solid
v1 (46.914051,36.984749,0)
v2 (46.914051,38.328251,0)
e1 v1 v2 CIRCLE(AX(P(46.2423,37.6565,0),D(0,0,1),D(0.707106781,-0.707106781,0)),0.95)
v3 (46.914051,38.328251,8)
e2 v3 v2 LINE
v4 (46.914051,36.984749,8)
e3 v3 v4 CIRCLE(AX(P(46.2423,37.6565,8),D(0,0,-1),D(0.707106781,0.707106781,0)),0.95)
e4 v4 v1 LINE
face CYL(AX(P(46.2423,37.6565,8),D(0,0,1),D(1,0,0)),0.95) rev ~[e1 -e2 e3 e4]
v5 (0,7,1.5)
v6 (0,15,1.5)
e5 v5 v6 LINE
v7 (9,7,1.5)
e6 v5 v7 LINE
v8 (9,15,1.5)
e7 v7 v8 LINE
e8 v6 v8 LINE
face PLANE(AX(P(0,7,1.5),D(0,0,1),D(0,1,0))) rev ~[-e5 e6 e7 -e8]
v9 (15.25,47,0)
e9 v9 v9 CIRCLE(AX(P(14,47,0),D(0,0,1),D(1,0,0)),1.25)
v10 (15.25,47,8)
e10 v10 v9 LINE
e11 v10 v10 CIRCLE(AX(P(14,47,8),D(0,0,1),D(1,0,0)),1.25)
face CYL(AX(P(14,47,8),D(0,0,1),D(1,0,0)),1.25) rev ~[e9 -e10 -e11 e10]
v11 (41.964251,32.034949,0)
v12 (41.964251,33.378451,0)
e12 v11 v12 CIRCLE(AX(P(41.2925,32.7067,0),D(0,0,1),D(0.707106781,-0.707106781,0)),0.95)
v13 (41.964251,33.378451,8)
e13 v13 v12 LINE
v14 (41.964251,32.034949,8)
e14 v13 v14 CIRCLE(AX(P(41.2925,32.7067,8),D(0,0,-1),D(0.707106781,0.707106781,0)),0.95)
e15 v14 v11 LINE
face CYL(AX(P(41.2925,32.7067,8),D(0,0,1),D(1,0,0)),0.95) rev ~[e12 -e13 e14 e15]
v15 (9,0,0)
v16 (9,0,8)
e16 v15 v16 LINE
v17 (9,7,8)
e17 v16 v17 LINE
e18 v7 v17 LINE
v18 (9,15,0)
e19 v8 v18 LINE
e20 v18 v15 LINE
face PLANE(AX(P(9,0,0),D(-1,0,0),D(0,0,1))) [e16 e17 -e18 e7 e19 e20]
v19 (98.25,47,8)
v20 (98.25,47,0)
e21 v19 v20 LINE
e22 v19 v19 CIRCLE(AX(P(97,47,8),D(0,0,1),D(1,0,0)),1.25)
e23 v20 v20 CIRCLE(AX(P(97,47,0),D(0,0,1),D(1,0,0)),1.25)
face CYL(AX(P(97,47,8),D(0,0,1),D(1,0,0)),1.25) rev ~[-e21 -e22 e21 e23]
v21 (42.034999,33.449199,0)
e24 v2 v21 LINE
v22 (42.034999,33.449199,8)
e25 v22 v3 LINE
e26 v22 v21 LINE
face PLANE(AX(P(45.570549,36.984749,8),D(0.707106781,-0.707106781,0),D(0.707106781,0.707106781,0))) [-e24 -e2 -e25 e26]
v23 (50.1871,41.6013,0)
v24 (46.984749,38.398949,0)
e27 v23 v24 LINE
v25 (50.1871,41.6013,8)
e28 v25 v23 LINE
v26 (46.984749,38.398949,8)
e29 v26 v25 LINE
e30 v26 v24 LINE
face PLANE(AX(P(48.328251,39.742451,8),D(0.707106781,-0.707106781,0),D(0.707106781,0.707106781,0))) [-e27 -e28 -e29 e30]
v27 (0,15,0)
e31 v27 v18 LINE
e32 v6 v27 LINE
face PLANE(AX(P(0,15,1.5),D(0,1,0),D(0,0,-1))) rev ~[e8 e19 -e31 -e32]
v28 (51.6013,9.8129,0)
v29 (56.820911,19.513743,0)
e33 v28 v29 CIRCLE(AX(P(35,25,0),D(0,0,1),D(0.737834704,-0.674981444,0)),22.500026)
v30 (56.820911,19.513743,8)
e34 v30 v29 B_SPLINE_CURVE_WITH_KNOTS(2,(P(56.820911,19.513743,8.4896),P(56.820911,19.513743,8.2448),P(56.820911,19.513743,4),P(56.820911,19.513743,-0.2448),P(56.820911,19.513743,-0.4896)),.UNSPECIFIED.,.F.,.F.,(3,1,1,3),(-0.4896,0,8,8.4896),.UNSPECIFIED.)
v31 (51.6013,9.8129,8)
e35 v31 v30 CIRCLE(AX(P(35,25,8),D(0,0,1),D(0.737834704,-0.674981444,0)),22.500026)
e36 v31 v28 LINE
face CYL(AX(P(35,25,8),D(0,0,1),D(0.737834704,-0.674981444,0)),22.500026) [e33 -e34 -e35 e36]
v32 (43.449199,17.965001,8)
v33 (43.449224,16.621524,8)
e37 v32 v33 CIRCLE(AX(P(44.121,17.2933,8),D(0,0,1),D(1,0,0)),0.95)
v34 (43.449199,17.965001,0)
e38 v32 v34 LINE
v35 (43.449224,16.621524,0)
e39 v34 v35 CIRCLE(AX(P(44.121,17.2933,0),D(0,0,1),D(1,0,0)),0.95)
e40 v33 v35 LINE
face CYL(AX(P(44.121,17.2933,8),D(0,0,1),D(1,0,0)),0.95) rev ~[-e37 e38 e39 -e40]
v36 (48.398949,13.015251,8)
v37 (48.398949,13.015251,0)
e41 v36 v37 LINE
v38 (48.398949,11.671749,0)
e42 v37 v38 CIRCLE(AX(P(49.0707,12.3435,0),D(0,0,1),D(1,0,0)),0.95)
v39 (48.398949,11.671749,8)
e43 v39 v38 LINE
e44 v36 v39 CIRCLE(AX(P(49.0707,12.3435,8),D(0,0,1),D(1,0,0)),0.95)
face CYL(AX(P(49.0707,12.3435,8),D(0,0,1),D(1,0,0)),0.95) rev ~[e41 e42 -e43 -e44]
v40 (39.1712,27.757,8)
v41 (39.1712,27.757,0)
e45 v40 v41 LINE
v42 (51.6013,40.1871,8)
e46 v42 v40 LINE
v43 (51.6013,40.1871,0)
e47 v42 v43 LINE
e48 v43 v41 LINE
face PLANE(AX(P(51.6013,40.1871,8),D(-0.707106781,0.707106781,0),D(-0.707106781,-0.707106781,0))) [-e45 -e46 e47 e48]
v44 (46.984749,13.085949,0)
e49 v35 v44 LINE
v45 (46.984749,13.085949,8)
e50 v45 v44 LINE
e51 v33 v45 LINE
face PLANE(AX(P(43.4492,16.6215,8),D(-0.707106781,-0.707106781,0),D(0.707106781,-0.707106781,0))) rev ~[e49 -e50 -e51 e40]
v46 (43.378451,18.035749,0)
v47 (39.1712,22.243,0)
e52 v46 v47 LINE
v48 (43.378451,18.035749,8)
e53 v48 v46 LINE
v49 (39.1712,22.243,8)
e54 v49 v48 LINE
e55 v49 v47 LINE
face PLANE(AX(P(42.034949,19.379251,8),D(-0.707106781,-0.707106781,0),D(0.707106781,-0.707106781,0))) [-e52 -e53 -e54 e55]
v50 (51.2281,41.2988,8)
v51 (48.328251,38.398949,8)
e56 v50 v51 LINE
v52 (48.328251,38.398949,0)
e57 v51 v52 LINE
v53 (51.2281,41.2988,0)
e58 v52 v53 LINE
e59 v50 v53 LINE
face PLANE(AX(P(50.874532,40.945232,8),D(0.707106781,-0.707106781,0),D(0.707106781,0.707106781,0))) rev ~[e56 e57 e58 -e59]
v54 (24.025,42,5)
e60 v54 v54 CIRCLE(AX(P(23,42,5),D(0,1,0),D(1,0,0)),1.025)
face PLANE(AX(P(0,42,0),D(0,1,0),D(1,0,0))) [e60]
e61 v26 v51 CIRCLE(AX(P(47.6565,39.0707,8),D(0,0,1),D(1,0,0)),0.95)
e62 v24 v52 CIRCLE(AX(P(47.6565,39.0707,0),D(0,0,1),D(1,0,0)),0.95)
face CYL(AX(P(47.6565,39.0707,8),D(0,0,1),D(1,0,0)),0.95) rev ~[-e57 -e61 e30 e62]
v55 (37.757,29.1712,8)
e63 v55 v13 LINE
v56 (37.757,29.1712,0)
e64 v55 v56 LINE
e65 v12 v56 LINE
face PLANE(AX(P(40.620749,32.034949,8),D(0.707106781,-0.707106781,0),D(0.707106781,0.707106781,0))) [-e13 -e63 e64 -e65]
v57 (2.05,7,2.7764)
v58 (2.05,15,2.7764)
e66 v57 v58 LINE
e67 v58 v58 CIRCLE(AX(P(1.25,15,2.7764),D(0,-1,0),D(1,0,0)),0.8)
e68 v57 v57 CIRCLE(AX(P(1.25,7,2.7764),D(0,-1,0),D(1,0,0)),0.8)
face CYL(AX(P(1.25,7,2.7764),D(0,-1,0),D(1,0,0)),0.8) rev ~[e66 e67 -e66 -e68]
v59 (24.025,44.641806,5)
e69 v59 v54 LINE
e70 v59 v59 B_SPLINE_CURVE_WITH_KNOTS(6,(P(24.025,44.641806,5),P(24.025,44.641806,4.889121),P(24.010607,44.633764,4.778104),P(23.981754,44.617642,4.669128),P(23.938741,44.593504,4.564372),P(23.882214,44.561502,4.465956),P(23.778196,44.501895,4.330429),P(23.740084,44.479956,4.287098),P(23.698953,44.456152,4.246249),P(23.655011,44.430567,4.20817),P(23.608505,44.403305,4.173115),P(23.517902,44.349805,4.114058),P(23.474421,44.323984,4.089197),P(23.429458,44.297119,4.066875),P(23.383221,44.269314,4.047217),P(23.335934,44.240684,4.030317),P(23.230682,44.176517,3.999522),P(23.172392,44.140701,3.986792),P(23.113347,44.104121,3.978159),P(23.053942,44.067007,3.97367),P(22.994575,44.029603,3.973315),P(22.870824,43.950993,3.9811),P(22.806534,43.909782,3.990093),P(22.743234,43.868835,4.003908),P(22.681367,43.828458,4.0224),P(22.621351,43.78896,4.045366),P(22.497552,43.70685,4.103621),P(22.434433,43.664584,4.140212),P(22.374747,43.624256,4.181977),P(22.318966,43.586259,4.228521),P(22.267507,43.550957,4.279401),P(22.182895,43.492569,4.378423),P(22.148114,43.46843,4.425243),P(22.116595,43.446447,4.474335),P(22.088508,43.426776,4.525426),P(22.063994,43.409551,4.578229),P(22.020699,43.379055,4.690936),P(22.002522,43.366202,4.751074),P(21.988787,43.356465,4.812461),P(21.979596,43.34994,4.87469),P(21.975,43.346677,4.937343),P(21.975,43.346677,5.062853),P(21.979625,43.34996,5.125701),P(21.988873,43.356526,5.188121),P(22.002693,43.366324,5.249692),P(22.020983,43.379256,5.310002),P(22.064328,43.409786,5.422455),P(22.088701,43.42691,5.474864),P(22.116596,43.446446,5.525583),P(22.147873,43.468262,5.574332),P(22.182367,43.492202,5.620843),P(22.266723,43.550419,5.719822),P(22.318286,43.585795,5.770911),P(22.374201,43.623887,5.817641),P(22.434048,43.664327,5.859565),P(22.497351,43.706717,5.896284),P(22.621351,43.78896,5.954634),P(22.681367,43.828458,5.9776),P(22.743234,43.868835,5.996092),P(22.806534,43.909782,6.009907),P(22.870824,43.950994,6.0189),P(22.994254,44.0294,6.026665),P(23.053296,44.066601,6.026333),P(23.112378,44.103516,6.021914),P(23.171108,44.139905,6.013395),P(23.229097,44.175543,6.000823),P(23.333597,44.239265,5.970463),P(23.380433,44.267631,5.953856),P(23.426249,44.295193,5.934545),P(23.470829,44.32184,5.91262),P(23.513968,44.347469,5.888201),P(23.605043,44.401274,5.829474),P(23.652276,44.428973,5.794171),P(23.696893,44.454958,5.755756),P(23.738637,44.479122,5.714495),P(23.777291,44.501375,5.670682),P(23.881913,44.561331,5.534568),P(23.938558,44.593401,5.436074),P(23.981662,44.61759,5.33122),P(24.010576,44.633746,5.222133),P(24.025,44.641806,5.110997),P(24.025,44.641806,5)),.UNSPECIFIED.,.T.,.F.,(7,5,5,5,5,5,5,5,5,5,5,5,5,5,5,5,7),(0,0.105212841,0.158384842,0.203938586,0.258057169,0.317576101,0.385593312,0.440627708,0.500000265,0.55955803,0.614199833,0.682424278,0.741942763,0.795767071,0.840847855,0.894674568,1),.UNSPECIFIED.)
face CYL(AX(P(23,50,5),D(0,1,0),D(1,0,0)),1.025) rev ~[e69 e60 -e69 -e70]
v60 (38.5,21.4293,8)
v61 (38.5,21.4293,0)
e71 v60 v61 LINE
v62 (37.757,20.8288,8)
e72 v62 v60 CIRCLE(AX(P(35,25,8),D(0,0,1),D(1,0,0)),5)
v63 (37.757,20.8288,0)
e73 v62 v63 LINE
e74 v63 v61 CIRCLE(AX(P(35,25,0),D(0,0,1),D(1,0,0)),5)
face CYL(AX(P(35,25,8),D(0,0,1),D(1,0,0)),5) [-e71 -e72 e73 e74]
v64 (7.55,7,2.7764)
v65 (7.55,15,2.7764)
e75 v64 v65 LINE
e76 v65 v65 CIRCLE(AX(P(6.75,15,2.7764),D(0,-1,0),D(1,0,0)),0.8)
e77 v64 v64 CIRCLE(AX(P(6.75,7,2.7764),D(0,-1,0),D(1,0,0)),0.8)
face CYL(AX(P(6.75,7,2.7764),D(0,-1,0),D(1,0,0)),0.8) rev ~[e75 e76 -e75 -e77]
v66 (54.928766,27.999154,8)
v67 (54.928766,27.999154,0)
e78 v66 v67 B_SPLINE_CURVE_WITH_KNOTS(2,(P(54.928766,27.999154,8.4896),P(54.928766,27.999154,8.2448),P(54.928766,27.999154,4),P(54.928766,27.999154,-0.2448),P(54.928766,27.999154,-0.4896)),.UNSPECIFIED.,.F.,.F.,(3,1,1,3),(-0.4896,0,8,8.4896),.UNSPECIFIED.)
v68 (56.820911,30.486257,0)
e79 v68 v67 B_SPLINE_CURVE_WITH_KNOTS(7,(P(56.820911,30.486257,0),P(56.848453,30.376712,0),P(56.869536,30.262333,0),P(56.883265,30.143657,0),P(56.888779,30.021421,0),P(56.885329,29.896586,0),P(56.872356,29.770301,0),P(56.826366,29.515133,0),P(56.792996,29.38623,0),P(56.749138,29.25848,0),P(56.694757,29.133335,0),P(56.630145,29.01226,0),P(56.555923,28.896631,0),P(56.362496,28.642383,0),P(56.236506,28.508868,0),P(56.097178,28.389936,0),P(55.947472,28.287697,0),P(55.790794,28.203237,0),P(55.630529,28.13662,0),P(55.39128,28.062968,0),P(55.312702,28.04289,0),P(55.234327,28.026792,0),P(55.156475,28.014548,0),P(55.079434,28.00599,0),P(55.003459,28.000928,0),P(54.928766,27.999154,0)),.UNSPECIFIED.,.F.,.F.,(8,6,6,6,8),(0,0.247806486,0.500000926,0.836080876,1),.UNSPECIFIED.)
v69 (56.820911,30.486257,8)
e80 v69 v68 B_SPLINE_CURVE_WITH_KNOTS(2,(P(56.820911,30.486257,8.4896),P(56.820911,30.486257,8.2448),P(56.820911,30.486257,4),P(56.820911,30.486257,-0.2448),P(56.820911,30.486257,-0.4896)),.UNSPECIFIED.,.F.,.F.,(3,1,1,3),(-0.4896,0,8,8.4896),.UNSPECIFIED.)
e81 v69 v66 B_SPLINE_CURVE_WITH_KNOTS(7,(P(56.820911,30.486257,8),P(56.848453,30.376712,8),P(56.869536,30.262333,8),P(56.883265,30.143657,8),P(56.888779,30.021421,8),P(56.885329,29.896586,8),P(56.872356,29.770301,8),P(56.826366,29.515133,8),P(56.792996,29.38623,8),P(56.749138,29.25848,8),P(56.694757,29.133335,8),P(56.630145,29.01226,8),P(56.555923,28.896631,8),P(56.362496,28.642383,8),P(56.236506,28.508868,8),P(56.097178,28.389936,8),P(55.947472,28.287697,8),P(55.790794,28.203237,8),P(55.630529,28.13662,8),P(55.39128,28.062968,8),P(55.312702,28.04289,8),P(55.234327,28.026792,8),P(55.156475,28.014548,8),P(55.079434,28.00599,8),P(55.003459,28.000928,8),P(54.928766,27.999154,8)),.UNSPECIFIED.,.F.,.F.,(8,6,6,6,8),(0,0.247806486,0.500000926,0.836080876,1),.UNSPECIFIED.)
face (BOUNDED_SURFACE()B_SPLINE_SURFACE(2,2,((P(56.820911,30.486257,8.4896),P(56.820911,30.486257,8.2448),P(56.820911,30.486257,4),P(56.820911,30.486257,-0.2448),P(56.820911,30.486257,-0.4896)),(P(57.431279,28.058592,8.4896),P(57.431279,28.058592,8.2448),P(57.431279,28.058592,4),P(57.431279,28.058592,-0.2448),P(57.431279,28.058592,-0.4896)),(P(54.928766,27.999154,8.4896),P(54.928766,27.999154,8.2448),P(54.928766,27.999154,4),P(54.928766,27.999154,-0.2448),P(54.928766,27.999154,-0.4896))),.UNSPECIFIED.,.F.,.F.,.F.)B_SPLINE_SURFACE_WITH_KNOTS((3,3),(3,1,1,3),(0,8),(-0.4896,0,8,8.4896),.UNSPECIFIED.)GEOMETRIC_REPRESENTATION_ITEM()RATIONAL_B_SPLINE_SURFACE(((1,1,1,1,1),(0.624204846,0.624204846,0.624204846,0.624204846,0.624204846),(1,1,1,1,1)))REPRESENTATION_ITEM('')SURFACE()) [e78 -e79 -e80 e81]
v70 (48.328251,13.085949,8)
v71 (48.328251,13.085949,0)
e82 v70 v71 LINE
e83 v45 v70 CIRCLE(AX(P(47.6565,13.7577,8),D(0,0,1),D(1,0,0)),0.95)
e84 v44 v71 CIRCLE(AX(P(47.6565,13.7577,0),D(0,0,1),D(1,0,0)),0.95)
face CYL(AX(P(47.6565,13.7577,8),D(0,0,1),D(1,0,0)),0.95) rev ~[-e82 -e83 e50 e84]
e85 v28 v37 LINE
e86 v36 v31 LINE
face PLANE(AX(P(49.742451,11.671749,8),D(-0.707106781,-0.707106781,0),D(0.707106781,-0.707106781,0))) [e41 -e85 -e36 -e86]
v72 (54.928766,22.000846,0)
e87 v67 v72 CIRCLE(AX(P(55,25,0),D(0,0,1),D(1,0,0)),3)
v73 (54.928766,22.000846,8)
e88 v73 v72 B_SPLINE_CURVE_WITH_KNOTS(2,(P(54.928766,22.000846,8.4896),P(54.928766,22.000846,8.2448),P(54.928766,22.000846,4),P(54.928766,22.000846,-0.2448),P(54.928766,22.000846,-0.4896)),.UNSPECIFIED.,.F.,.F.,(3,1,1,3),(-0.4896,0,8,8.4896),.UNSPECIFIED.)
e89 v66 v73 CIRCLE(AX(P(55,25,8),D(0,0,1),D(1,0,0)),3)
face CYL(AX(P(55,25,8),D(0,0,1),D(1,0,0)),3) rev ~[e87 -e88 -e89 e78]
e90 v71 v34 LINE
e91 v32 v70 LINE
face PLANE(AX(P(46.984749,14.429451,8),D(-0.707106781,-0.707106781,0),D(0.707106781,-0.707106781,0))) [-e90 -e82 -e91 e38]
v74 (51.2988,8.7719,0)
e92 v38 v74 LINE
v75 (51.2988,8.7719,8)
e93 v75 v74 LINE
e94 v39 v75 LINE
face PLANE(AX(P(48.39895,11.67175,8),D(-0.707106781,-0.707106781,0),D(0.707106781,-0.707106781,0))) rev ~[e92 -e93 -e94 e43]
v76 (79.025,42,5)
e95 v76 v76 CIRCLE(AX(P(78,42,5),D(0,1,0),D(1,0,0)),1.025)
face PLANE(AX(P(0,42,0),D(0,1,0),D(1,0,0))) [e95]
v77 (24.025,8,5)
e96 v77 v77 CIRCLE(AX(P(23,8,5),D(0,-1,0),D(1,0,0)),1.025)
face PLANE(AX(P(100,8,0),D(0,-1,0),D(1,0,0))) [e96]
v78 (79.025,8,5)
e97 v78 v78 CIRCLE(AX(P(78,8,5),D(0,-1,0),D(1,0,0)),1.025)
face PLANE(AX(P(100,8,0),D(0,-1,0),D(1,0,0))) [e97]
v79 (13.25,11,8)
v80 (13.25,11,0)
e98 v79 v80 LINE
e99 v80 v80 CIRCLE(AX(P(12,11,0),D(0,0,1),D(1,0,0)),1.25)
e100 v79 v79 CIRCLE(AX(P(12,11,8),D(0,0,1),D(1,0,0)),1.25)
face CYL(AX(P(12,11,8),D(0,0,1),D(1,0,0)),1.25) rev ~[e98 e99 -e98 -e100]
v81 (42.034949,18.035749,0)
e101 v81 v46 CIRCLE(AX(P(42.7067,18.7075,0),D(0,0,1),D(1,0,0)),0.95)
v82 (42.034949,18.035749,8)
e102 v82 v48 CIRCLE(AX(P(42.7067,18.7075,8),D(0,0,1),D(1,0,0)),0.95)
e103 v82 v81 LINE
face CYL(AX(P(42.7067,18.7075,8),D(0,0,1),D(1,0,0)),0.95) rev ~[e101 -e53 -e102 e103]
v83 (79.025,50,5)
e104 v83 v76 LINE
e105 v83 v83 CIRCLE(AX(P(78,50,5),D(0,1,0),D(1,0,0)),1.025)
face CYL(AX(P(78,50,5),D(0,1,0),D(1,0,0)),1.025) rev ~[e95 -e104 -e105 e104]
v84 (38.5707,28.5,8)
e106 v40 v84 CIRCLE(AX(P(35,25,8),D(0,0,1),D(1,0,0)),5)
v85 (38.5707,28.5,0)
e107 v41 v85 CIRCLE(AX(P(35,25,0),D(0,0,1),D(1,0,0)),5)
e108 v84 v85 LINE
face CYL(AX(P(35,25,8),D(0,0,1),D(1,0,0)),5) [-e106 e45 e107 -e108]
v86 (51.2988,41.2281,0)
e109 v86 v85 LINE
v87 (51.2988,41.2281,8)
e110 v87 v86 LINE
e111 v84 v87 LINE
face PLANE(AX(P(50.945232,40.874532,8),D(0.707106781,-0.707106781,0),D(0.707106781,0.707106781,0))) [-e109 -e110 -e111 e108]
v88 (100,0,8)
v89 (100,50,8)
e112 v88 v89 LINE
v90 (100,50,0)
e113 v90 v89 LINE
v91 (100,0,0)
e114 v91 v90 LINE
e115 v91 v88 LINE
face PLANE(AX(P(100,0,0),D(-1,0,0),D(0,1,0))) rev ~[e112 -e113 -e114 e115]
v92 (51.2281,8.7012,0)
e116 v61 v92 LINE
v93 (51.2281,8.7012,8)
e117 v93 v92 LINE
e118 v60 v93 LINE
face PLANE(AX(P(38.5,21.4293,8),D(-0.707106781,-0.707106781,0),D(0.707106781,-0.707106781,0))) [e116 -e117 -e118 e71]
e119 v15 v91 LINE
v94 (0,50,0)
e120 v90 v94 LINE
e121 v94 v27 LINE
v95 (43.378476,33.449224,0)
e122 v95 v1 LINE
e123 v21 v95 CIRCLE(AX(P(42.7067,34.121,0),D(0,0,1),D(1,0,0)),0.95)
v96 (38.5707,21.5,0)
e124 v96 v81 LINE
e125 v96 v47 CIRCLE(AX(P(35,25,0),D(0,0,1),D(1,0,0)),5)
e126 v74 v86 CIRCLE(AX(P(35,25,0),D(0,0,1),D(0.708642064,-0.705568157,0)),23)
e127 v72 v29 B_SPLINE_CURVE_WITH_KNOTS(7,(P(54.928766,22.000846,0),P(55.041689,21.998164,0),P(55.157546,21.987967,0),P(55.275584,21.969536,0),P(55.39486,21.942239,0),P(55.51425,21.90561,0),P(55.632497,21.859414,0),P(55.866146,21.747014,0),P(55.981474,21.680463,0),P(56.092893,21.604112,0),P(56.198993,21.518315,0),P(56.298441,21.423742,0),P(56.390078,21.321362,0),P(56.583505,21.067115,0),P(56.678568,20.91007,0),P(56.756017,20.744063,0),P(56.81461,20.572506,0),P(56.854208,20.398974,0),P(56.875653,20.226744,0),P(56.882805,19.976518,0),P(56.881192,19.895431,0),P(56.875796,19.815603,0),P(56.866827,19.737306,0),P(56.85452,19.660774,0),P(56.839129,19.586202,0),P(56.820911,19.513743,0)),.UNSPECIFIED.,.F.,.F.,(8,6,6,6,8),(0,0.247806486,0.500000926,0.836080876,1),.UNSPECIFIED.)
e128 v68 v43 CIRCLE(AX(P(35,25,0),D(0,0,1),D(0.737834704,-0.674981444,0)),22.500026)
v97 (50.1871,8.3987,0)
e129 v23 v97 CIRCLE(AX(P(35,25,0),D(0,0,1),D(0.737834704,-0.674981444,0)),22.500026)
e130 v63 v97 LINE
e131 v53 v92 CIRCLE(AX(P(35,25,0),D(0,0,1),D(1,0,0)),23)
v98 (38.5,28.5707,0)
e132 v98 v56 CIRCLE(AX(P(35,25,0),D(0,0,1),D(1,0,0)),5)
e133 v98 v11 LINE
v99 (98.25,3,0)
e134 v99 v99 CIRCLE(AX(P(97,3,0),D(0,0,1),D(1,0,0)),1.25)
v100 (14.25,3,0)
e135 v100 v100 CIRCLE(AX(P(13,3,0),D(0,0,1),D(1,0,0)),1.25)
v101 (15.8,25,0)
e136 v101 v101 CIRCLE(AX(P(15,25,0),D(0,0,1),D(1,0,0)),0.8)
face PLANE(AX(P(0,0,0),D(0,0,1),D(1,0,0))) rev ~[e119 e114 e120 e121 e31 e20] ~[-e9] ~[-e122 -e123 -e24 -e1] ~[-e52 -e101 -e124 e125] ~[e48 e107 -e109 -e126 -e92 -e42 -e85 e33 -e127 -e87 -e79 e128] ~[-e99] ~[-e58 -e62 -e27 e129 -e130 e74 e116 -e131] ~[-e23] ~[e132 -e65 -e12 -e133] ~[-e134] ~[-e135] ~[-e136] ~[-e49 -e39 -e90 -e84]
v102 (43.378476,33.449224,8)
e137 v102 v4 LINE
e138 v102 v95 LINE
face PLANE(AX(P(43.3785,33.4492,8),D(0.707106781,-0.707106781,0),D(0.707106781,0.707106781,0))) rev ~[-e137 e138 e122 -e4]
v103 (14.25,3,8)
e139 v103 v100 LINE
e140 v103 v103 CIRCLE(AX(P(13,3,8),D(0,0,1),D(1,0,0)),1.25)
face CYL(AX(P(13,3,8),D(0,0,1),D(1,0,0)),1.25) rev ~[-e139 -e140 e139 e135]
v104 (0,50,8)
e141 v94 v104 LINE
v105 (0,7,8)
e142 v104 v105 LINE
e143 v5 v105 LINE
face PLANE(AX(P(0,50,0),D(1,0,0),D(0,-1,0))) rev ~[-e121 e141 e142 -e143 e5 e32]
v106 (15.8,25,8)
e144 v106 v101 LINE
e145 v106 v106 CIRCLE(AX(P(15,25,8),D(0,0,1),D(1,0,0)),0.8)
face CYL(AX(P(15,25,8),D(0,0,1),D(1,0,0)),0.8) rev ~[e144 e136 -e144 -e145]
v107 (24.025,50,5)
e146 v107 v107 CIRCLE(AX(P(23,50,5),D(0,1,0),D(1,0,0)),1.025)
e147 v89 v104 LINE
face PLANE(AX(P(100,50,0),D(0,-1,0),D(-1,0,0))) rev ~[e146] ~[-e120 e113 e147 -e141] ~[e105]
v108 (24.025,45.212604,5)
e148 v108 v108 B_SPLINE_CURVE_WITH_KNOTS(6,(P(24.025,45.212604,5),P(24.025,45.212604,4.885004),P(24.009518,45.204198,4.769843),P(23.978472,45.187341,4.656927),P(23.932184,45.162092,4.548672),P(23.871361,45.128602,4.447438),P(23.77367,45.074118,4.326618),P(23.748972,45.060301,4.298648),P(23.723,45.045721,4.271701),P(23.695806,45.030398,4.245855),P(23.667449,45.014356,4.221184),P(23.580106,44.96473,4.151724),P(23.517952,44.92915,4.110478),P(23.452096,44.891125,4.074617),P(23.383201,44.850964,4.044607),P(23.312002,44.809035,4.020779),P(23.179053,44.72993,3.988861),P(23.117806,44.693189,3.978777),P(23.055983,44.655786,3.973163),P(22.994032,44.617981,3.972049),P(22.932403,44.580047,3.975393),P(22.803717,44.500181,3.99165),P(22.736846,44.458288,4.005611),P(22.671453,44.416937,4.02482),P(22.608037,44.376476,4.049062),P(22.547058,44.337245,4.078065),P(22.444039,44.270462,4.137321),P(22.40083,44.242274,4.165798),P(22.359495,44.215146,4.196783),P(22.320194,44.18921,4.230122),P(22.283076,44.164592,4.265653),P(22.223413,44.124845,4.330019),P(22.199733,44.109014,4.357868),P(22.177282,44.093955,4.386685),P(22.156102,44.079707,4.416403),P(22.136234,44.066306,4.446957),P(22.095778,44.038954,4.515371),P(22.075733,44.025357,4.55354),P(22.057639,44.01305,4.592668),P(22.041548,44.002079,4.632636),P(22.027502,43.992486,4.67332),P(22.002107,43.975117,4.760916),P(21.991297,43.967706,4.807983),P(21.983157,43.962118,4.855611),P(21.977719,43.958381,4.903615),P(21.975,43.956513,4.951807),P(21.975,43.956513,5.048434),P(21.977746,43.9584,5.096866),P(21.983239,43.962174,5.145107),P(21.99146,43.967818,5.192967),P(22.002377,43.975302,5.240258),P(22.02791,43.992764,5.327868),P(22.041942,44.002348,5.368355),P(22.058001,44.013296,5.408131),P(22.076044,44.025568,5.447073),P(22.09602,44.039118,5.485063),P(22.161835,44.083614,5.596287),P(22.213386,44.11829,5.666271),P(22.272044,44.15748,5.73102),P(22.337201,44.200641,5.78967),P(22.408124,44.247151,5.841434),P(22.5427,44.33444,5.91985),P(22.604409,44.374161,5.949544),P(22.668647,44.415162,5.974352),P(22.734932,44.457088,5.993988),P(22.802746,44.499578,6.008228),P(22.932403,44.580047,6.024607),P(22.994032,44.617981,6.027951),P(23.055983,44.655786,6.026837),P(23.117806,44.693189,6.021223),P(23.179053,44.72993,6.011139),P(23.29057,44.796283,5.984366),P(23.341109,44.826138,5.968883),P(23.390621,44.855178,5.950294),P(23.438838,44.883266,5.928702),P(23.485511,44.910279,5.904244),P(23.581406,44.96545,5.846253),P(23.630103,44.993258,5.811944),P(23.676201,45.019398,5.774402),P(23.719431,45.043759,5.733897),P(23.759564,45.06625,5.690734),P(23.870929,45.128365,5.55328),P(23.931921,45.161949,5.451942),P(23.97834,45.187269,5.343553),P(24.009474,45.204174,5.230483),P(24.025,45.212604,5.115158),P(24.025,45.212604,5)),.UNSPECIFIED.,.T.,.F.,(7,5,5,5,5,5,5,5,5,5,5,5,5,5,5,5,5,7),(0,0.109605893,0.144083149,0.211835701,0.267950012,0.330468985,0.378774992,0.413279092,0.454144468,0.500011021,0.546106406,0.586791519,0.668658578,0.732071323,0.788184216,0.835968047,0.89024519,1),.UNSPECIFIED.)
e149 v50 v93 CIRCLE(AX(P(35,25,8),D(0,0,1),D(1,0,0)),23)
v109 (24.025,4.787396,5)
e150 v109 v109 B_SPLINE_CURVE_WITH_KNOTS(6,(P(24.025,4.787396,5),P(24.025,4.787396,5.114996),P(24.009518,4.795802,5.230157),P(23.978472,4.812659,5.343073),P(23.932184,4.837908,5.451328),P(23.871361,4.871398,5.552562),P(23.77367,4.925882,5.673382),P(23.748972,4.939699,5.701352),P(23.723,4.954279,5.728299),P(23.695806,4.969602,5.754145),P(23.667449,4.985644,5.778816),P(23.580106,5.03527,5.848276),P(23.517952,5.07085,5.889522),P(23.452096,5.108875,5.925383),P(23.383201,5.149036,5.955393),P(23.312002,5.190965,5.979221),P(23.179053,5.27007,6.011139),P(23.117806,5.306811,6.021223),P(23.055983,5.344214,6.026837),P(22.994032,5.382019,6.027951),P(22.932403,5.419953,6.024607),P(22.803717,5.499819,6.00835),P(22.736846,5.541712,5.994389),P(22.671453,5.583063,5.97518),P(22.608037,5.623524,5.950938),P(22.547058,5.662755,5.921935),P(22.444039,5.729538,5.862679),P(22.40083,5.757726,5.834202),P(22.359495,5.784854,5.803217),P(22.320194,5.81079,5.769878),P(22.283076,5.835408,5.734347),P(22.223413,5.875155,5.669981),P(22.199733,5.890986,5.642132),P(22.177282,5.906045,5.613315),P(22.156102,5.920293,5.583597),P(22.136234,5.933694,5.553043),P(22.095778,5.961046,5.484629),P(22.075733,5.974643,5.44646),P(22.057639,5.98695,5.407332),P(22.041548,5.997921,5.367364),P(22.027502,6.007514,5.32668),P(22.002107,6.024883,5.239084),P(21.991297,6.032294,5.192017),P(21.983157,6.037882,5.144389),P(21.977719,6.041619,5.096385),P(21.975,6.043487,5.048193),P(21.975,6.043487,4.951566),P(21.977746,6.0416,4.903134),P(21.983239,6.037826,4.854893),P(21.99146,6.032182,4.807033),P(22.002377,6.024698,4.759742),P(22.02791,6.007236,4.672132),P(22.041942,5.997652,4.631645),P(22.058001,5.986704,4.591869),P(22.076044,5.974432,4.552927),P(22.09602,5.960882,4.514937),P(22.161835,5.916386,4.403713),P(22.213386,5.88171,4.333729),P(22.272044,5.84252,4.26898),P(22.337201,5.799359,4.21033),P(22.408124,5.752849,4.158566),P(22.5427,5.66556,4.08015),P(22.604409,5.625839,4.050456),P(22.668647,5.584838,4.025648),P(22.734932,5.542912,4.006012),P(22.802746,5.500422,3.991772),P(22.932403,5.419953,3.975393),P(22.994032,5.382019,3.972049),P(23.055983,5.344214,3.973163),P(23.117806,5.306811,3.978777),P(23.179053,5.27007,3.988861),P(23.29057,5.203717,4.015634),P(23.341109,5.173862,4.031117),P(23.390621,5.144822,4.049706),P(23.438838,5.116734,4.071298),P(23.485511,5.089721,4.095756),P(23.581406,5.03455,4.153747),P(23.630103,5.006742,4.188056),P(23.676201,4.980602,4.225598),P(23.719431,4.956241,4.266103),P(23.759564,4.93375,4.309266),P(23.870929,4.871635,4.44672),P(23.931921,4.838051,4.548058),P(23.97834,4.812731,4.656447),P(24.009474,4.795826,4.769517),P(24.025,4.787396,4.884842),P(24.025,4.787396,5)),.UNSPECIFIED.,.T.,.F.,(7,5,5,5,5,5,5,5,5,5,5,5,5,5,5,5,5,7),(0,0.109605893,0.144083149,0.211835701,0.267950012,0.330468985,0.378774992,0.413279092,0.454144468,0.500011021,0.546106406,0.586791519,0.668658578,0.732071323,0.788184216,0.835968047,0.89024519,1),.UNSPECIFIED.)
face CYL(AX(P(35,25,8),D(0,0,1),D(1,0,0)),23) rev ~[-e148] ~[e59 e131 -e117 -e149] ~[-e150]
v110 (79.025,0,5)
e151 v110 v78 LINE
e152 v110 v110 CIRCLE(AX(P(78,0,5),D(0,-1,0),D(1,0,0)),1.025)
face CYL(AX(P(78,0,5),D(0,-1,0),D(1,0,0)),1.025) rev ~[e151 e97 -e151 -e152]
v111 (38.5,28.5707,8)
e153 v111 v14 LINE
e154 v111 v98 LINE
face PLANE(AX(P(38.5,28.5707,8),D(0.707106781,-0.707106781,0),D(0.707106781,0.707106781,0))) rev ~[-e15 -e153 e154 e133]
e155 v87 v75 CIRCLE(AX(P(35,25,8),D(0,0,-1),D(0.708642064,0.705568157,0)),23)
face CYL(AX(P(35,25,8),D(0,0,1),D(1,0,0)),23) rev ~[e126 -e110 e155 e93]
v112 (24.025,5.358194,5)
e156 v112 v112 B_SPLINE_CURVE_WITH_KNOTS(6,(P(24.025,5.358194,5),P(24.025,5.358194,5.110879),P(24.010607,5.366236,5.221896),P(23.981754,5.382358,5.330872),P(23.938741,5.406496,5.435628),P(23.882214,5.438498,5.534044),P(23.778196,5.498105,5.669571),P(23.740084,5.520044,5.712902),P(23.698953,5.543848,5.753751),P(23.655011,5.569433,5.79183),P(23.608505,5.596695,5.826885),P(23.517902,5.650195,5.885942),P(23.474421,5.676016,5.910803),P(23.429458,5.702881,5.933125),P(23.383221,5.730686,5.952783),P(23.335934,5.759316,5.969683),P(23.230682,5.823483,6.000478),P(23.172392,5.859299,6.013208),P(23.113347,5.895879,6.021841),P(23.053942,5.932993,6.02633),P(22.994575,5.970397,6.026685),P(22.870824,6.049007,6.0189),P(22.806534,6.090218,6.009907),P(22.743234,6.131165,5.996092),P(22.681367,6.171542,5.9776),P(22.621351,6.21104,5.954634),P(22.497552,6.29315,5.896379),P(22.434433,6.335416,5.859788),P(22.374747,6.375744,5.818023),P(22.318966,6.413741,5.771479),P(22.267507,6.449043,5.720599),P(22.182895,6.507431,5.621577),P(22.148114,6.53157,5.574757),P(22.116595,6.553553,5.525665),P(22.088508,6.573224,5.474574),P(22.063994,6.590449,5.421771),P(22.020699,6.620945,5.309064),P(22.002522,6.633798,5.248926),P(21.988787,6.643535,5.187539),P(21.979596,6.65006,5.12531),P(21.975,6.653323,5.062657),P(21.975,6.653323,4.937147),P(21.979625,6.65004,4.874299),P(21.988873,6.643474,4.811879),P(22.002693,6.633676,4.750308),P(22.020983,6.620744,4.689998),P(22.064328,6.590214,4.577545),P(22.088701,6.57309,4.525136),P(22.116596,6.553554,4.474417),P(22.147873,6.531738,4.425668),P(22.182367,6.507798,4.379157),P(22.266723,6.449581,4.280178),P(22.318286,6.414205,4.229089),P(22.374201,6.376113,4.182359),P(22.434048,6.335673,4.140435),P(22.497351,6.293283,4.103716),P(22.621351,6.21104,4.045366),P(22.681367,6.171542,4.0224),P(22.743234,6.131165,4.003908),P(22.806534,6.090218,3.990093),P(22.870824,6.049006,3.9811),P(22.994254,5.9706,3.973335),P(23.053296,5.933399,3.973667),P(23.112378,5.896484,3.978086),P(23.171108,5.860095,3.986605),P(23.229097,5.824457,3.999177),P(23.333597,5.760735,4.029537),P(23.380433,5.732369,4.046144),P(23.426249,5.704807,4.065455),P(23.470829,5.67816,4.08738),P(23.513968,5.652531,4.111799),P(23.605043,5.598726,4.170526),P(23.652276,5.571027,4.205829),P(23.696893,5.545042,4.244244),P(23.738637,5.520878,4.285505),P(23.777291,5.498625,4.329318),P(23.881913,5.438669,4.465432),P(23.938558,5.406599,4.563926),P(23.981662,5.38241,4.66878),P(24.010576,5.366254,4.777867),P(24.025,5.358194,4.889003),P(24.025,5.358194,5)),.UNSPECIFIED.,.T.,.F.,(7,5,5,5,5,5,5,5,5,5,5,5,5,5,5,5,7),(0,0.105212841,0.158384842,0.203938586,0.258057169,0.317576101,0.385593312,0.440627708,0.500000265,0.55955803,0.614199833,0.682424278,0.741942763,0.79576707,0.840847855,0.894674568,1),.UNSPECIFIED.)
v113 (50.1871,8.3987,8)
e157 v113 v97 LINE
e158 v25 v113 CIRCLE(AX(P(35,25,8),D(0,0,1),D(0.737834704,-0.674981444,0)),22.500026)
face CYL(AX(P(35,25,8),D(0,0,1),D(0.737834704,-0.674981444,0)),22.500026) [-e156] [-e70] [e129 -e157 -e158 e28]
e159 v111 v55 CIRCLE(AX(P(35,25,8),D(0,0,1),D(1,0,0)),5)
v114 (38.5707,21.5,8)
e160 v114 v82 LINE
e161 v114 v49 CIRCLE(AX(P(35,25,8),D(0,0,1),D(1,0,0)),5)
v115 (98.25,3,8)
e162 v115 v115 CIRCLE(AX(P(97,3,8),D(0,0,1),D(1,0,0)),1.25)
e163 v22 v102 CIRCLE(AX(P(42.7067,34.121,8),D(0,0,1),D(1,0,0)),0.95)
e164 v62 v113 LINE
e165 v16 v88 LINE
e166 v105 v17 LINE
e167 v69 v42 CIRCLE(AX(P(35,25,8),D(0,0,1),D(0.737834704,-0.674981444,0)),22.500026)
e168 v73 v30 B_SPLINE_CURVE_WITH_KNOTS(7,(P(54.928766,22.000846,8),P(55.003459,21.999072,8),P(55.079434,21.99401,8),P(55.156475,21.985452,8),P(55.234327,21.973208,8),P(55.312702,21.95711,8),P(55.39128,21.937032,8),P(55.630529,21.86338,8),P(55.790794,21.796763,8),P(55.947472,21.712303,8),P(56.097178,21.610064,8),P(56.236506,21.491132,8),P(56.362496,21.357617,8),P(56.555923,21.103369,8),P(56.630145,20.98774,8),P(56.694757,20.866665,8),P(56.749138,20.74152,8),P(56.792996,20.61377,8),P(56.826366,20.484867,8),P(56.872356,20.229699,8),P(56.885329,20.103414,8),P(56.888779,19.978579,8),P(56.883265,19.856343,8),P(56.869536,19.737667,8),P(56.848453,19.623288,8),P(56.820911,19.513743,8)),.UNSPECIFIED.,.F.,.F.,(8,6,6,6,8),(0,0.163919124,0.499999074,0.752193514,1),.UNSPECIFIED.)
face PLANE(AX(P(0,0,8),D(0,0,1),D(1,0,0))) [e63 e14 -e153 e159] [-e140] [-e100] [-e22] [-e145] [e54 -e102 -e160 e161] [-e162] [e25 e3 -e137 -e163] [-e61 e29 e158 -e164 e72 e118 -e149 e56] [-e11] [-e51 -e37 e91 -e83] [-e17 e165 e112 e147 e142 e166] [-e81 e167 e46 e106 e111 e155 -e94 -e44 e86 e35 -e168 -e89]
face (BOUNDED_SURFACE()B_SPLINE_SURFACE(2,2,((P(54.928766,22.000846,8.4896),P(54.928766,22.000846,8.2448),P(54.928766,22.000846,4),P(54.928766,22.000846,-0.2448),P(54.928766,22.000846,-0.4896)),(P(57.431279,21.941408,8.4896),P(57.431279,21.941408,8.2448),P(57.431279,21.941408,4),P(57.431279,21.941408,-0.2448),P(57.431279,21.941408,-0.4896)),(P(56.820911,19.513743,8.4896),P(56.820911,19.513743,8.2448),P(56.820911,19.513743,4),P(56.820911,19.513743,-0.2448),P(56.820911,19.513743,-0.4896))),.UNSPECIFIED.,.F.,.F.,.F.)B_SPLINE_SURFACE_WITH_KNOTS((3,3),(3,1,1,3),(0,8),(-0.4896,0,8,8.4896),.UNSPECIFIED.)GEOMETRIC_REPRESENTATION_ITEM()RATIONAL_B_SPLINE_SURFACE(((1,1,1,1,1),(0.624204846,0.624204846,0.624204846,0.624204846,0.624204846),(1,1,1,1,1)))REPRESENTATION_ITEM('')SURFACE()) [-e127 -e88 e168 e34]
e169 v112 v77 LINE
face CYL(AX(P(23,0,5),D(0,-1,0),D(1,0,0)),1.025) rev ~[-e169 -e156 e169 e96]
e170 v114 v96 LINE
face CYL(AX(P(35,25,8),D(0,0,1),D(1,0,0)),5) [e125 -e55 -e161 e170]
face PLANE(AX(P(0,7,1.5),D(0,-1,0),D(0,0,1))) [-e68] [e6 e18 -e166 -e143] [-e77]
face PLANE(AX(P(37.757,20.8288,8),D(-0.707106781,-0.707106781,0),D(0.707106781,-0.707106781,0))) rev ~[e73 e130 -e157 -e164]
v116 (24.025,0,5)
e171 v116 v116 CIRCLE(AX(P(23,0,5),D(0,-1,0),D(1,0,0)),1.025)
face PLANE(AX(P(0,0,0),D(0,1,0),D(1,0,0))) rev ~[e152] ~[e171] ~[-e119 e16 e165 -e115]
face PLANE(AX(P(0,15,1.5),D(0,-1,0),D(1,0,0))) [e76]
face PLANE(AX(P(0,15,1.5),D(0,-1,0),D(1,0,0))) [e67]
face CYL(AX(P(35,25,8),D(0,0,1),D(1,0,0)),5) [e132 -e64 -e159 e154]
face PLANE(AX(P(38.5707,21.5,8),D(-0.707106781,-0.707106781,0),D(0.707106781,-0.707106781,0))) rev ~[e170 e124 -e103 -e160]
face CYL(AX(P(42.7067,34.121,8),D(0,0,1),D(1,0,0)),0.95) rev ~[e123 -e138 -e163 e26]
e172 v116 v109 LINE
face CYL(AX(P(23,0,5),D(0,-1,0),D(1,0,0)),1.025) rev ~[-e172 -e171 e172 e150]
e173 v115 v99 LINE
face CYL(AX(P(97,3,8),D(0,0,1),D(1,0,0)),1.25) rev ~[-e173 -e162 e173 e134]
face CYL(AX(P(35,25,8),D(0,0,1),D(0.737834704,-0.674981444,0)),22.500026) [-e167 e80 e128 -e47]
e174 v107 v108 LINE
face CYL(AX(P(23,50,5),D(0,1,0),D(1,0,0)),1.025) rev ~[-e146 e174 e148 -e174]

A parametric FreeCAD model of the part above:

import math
import FreeCAD as App
import Part
import Sketcher

V = App.Vector
Q = App.Units.Quantity


def edges_at(feature, points):
    """Names of the edges that pass closest to the given points."""
    edges = feature.Shape.Edges
    near = lambda p: min(range(len(edges)), key=lambda i: edges[i].distToShape(Part.Vertex(*p))[0])
    return sorted({f"Edge{near(p) + 1}" for p in points})

doc = App.newDocument("Part")
params = doc.addObject("Spreadsheet::Sheet", "Params")
for row, (alias, value) in enumerate([
    ("sketch1_width", "100 mm"),
    ("sketch1_height", "50 mm"),
    ("pad1_length", "8 mm"),
    ("sketch2_radius", "23 mm"),
    ("sketch2_radius2", "5 mm"),
    ("sketch2_radius3", "3 mm"),
    ("sketch2_diameter", "1.6 mm"),
    ("sketch2_radius4", "22.5 mm"),
    ("pocket1_length", "8 mm"),
    ("fillet_radius", "2 mm"),
    ("sketch3_width", "15 mm"),
    ("sketch3_width2", "7 mm"),
    ("sketch3_height", "1.5 mm"),
    ("pocket2_length", "9 mm"),
    ("sketch4_diameter", "1.6 mm"),
    ("pocket3_length", "8 mm"),
    ("sketch5_diameter", "2.5 mm"),
    ("pocket4_length", "8 mm"),
    ("sketch6_diameter", "2.05 mm"),
    ("pocket5_length", "8 mm"),
    ("sketch7_diameter", "2.05 mm"),
    ("pocket6_length", "8 mm"),
], start=1):
    params.set(f"A{row}", alias)
    params.set(f"B{row}", "=" + value)
    params.setAlias(f"B{row}", alias)

body = doc.addObject("PartDesign::Body", "Body")

# Sketch on XY plane
sketch1 = body.newObject("Sketcher::SketchObject", "Sketch")
sketch1.AttachmentSupport = (doc.getObject("XY_Plane"), [""])
sketch1.MapMode = "FlatFace"
sketch1.addGeometry([
    Part.LineSegment(V(0, 50, 0), V(0, 0, 0)),
    Part.LineSegment(V(0, 0, 0), V(100, 0, 0)),
    Part.LineSegment(V(100, 0, 0), V(100, 50, 0)),
    Part.LineSegment(V(100, 50, 0), V(0, 50, 0)),
], False)
sketch1.addConstraint([
    Sketcher.Constraint("Coincident", 0, 2, 1, 1),
    Sketcher.Constraint("Coincident", 1, 2, 2, 1),
    Sketcher.Constraint("Coincident", 2, 2, 3, 1),
    Sketcher.Constraint("Coincident", 3, 2, 0, 1),
    Sketcher.Constraint("Vertical", 0),
    Sketcher.Constraint("Horizontal", 1),
    Sketcher.Constraint("Vertical", 2),
    Sketcher.Constraint("Horizontal", 3),
    Sketcher.Constraint("Coincident", 0, 2, -1, 1),
    Sketcher.Constraint("DistanceX", 1, 1, 1, 2, Q("100 mm")),
    Sketcher.Constraint("DistanceY", 0, 2, 0, 1, Q("50 mm")),
])
sketch1.setExpression("Constraints[9]", "Params.sketch1_width")
sketch1.setExpression("Constraints[10]", "Params.sketch1_height")
pad1 = body.newObject("PartDesign::Pad", "Pad")
pad1.Profile = sketch1
pad1.setExpression("Length", "Params.pad1_length")

# Sketch on XY plane
sketch2 = body.newObject("Sketcher::SketchObject", "Sketch001")
sketch2.AttachmentSupport = (doc.getObject("XY_Plane"), [""])
sketch2.MapMode = "FlatFace"
sketch2.AttachmentOffset = App.Placement(V(0, 0, 8), App.Rotation())
sketch2.addGeometry([
    Part.Circle(V(15, 25, 0), V(0, 0, 1), 0.8),  # 0
    Part.ArcOfCircle(Part.Circle(V(35, 25, 0), V(0, 0, 1), 23), math.radians(-44.875463), math.radians(44.875463)),  # 1
    Part.LineSegment(V(51.2988, 41.2281, 0), V(38.5707, 28.5, 0)),  # 2
    Part.ArcOfCircle(Part.Circle(V(35, 25, 0), V(0, 0, 1), 5), math.radians(33.463143), math.radians(44.427118)),  # 3
    Part.LineSegment(V(39.1712, 27.757, 0), V(51.6013, 40.1871, 0)),  # 4
    Part.ArcOfCircle(Part.Circle(V(35, 25, 0), V(0, 0, 1), 22.500026), math.radians(4.48005), math.radians(42.452709)),  # 5
    Part.ArcOfCircle(Part.Circle(V(55, 25, 0), V(0, 0, 1), 3), math.radians(35.862387), math.radians(324.137613)),  # 6
    Part.ArcOfCircle(Part.Circle(V(35, 25, 0), V(0, 0, 1), 22.500026), math.radians(-42.452709), math.radians(-4.48005)),  # 7
    Part.LineSegment(V(51.6013, 9.8129, 0), V(48.398949, 13.015251, 0)),  # 8
    Part.ArcOfCircle(Part.Circle(V(49.0707, 12.3435, 0), V(0, 0, 1), 0.95), math.radians(135), math.radians(225)),  # 9
    Part.LineSegment(V(48.39895, 11.67175, 0), V(51.2988, 8.7719, 0)),  # 10
    Part.ArcOfCircle(Part.Circle(V(35, 25, 0), V(0, 0, 1), 23), math.radians(45.124537), math.radians(314.875463)),  # 11
    Part.LineSegment(V(51.2281, 8.7012, 0), V(38.5, 21.4293, 0)),  # 12
    Part.ArcOfCircle(Part.Circle(V(35, 25, 0), V(0, 0, 1), 5), math.radians(-56.536857), math.radians(-45.572882)),  # 13
    Part.LineSegment(V(37.757, 20.8288, 0), V(50.1871, 8.3987, 0)),  # 14
    Part.ArcOfCircle(Part.Circle(V(35, 25, 0), V(0, 0, 1), 22.500026), math.radians(47.547291), math.radians(312.452709)),  # 15
    Part.LineSegment(V(50.1871, 41.6013, 0), V(46.984749, 38.398949, 0)),  # 16
    Part.ArcOfCircle(Part.Circle(V(47.6565, 39.0707, 0), V(0, 0, 1), 0.95), math.radians(-135), math.radians(-45)),  # 17
    Part.LineSegment(V(48.328251, 38.398949, 0), V(51.2281, 41.2988, 0)),  # 18
    Part.LineSegment(V(43.4492, 16.6215, 0), V(46.98475, 13.08595, 0)),  # 19
    Part.ArcOfCircle(Part.Circle(V(47.6565, 13.7577, 0), V(0, 0, 1), 0.95), math.radians(-135), math.radians(-45)),  # 20
    Part.LineSegment(V(48.328251, 13.085949, 0), V(43.449199, 17.965001, 0)),  # 21
    Part.ArcOfCircle(Part.Circle(V(44.121, 17.2933, 0), V(0, 0, 1), 0.95), math.radians(135.004265), math.radians(225)),  # 22
    Part.ArcOfCircle(Part.Circle(V(35, 25, 0), V(0, 0, 1), 5), math.radians(-44.427118), math.radians(-33.463143)),  # 23
    Part.LineSegment(V(38.5707, 21.5, 0), V(42.03495, 18.03575, 0)),  # 24
    Part.ArcOfCircle(Part.Circle(V(42.7067, 18.7075, 0), V(0, 0, 1), 0.95), math.radians(-135), math.radians(-45)),  # 25
    Part.LineSegment(V(43.378451, 18.035749, 0), V(39.1712, 22.243, 0)),  # 26
    Part.ArcOfCircle(Part.Circle(V(35, 25, 0), V(0, 0, 1), 5), math.radians(45.572882), math.radians(56.536857)),  # 27
    Part.LineSegment(V(38.5, 28.5707, 0), V(41.96425, 32.03495, 0)),  # 28
    Part.ArcOfCircle(Part.Circle(V(41.2925, 32.7067, 0), V(0, 0, 1), 0.95), math.radians(-45), math.radians(45)),  # 29
    Part.LineSegment(V(41.964251, 33.378451, 0), V(37.757, 29.1712, 0)),  # 30
    Part.LineSegment(V(43.3785, 33.4492, 0), V(46.91405, 36.98475, 0)),  # 31
    Part.ArcOfCircle(Part.Circle(V(46.2423, 37.6565, 0), V(0, 0, 1), 0.95), math.radians(-45), math.radians(45)),  # 32
    Part.LineSegment(V(46.914051, 38.328251, 0), V(42.034999, 33.449199, 0)),  # 33
    Part.ArcOfCircle(Part.Circle(V(42.7067, 34.121, 0), V(0, 0, 1), 0.95), math.radians(-134.995735), math.radians(-45)),  # 34
], False)
sketch2.addConstraint([
    Sketcher.Constraint("Coincident", 1, 2, 2, 1),
    Sketcher.Constraint("Coincident", 2, 2, 3, 2),
    Sketcher.Constraint("Coincident", 3, 1, 4, 1),
    Sketcher.Constraint("Coincident", 4, 2, 5, 2),
    Sketcher.Constraint("Coincident", 5, 1, 6, 1),
    Sketcher.Constraint("Coincident", 6, 2, 7, 2),
    Sketcher.Constraint("Coincident", 7, 1, 8, 1),
    Sketcher.Constraint("Coincident", 8, 2, 9, 1),
    Sketcher.Constraint("Tangent", 9, 2, 10, 1),
    Sketcher.Constraint("Coincident", 10, 2, 1, 1),
    Sketcher.Constraint("Coincident", 11, 2, 12, 1),
    Sketcher.Constraint("Coincident", 12, 2, 13, 2),
    Sketcher.Constraint("Coincident", 13, 1, 14, 1),
    Sketcher.Constraint("Coincident", 14, 2, 15, 2),
    Sketcher.Constraint("Coincident", 15, 1, 16, 1),
    Sketcher.Constraint("Coincident", 16, 2, 17, 1),
    Sketcher.Constraint("Tangent", 17, 2, 18, 1),
    Sketcher.Constraint("Coincident", 18, 2, 11, 1),
    Sketcher.Constraint("Tangent", 19, 2, 20, 1),
    Sketcher.Constraint("Coincident", 20, 2, 21, 1),
    Sketcher.Constraint("Coincident", 21, 2, 22, 1),
    Sketcher.Constraint("Tangent", 22, 2, 19, 1),
    Sketcher.Constraint("Coincident", 23, 1, 24, 1),
    Sketcher.Constraint("Tangent", 24, 2, 25, 1),
    Sketcher.Constraint("Coincident", 25, 2, 26, 1),
    Sketcher.Constraint("Coincident", 26, 2, 23, 2),
    Sketcher.Constraint("Coincident", 27, 1, 28, 1),
    Sketcher.Constraint("Tangent", 28, 2, 29, 1),
    Sketcher.Constraint("Coincident", 29, 2, 30, 1),
    Sketcher.Constraint("Coincident", 30, 2, 27, 2),
    Sketcher.Constraint("Tangent", 31, 2, 32, 1),
    Sketcher.Constraint("Coincident", 32, 2, 33, 1),
    Sketcher.Constraint("Coincident", 33, 2, 34, 1),
    Sketcher.Constraint("Tangent", 34, 2, 31, 1),
    Sketcher.Constraint("Coincident", 3, 3, 1, 3),
    Sketcher.Constraint("Coincident", 5, 3, 1, 3),
    Sketcher.Constraint("Coincident", 7, 3, 1, 3),
    Sketcher.Constraint("Coincident", 11, 3, 1, 3),
    Sketcher.Constraint("Coincident", 13, 3, 1, 3),
    Sketcher.Constraint("Coincident", 15, 3, 1, 3),
    Sketcher.Constraint("Coincident", 23, 3, 1, 3),
    Sketcher.Constraint("Coincident", 27, 3, 1, 3),
    Sketcher.Constraint("Equal", 5, 7),
    Sketcher.Constraint("Equal", 1, 11),
    Sketcher.Constraint("Equal", 3, 13),
    Sketcher.Constraint("Equal", 7, 15),
    Sketcher.Constraint("Equal", 9, 17),
    Sketcher.Constraint("Equal", 17, 20),
    Sketcher.Constraint("Equal", 20, 22),
    Sketcher.Constraint("Equal", 13, 23),
    Sketcher.Constraint("Equal", 22, 25),
    Sketcher.Constraint("Equal", 23, 27),
    Sketcher.Constraint("Equal", 25, 29),
    Sketcher.Constraint("Equal", 29, 32),
    Sketcher.Constraint("Equal", 32, 34),
    Sketcher.Constraint("Parallel", 2, 4),
    Sketcher.Constraint("Perpendicular", 4, 8),
    Sketcher.Constraint("Parallel", 8, 10),
    Sketcher.Constraint("Parallel", 10, 12),
    Sketcher.Constraint("Parallel", 12, 14),
    Sketcher.Constraint("Perpendicular", 14, 16),
    Sketcher.Constraint("Parallel", 16, 18),
    Sketcher.Constraint("Perpendicular", 18, 19),
    Sketcher.Constraint("Parallel", 19, 21),
    Sketcher.Constraint("Parallel", 21, 24),
    Sketcher.Constraint("Parallel", 24, 26),
    Sketcher.Constraint("Perpendicular", 26, 28),
    Sketcher.Constraint("Parallel", 28, 30),
    Sketcher.Constraint("Parallel", 30, 31),
    Sketcher.Constraint("Parallel", 31, 33),
    Sketcher.Constraint("Horizontal", 0, 3, 1, 3),
    Sketcher.Constraint("Horizontal", 5, 3, 6, 3),
    Sketcher.Constraint("Horizontal", 16, 2, 17, 2),
    Sketcher.Constraint("Horizontal", 19, 2, 20, 2),
    Sketcher.Constraint("Horizontal", 24, 2, 25, 2),
    Sketcher.Constraint("Horizontal", 33, 2, 34, 2),
    Sketcher.Constraint("Vertical", 17, 3, 20, 3),
    Sketcher.Constraint("Vertical", 25, 3, 34, 3),
    Sketcher.Constraint("Vertical", 4, 2, 7, 1),
    Sketcher.Constraint("Vertical", 8, 2, 9, 2),
    Sketcher.Constraint("Vertical", 1, 2, 10, 2),
    Sketcher.Constraint("Vertical", 14, 2, 15, 1),
    Sketcher.Constraint("Vertical", 11, 2, 18, 2),
    Sketcher.Constraint("Vertical", 16, 2, 19, 2),
    Sketcher.Constraint("Vertical", 2, 2, 23, 1),
    Sketcher.Constraint("Vertical", 12, 2, 27, 1),
    Sketcher.Constraint("Vertical", 28, 2, 29, 2),
    Sketcher.Constraint("Equal", 2, 12),
    Sketcher.Constraint("Equal", 8, 16),
    Sketcher.Constraint("Equal", 24, 28),
    Sketcher.Constraint("Equal", 19, 31),
    Sketcher.Constraint("Radius", 1, Q("23 mm")),
    Sketcher.Constraint("Radius", 3, Q("5 mm")),
    Sketcher.Constraint("Radius", 6, Q("3 mm")),
    Sketcher.Constraint("Diameter", 0, Q("1.6 mm")),
    Sketcher.Constraint("Radius", 5, Q("22.5 mm")),
    Sketcher.Constraint("Distance", 19, Q("5 mm")),
    Sketcher.Constraint("DistanceX", -1, 1, 0, 3, Q("15 mm")),
    Sketcher.Constraint("DistanceY", -1, 1, 0, 3, Q("25 mm")),
    Sketcher.Constraint("DistanceX", 0, 3, 1, 3, Q("20 mm")),
    Sketcher.Constraint("DistanceX", 1, 3, 6, 3, Q("20 mm")),
    Sketcher.Constraint("Radius", 9, Q("0.95 mm")),
    Sketcher.Constraint("DistanceY", -1, 1, 2, 2, Q("28.5 mm")),
    Sketcher.Constraint("Distance", 26, Q("5.95 mm")),
    Sketcher.Constraint("Distance", 10, Q("4.101 mm")),
    Sketcher.Constraint("DistanceY", -1, 1, 34, 3, Q("34.121 mm")),
    Sketcher.Constraint("DistanceY", -1, 1, 19, 2, Q("13.086 mm")),
])
sketch2.setExpression("Constraints[91]", "Params.sketch2_radius")
sketch2.setExpression("Constraints[92]", "Params.sketch2_radius2")
sketch2.setExpression("Constraints[93]", "Params.sketch2_radius3")
sketch2.setExpression("Constraints[94]", "Params.sketch2_diameter")
sketch2.setExpression("Constraints[95]", "Params.sketch2_radius4")
pocket1 = body.newObject("PartDesign::Pocket", "Pocket")
pocket1.Profile = sketch2
pocket1.setExpression("Length", "Params.pocket1_length")
doc.recompute()

fillet = body.newObject("PartDesign::Fillet", "Fillet")
fillet.Base = (pocket1, edges_at(pocket1, [(57.431, 26.758, 4), (57.431, 23.242, 4)]))
fillet.setExpression("Radius", "Params.fillet_radius")

# Sketch on YZ plane
sketch3 = body.newObject("Sketcher::SketchObject", "Sketch002")
sketch3.AttachmentSupport = (doc.getObject("YZ_Plane"), [""])
sketch3.MapMode = "FlatFace"
sketch3.addGeometry([
    Part.LineSegment(V(15, 0, 0), V(0, 0, 0)),  # 0
    Part.LineSegment(V(0, 0, 0), V(0, 8, 0)),  # 1
    Part.LineSegment(V(0, 8, 0), V(7, 8, 0)),  # 2
    Part.LineSegment(V(7, 8, 0), V(7, 1.5, 0)),  # 3
    Part.LineSegment(V(7, 1.5, 0), V(15, 1.5, 0)),  # 4
    Part.LineSegment(V(15, 1.5, 0), V(15, 0, 0)),  # 5
], False)
sketch3.addConstraint([
    Sketcher.Constraint("Coincident", 0, 2, 1, 1),
    Sketcher.Constraint("Coincident", 1, 2, 2, 1),
    Sketcher.Constraint("Coincident", 2, 2, 3, 1),
    Sketcher.Constraint("Coincident", 3, 2, 4, 1),
    Sketcher.Constraint("Coincident", 4, 2, 5, 1),
    Sketcher.Constraint("Coincident", 5, 2, 0, 1),
    Sketcher.Constraint("Horizontal", 0),
    Sketcher.Constraint("Vertical", 1),
    Sketcher.Constraint("Horizontal", 2),
    Sketcher.Constraint("Vertical", 3),
    Sketcher.Constraint("Horizontal", 4),
    Sketcher.Constraint("Vertical", 5),
    Sketcher.Constraint("Coincident", 0, 2, -1, 1),
    Sketcher.Constraint("Equal", 4, 1),
    Sketcher.Constraint("DistanceX", 0, 2, 0, 1, Q("15 mm")),
    Sketcher.Constraint("DistanceX", 2, 1, 2, 2, Q("7 mm")),
    Sketcher.Constraint("DistanceY", 5, 2, 5, 1, Q("1.5 mm")),
])
sketch3.setExpression("Constraints[14]", "Params.sketch3_width")
sketch3.setExpression("Constraints[15]", "Params.sketch3_width2")
sketch3.setExpression("Constraints[16]", "Params.sketch3_height")
pocket2 = body.newObject("PartDesign::Pocket", "Pocket001")
pocket2.Profile = sketch3
pocket2.setExpression("Length", "Params.pocket2_length")
pocket2.Reversed = True

# Sketch on XZ plane
sketch4 = body.newObject("Sketcher::SketchObject", "Sketch003")
sketch4.AttachmentSupport = (doc.getObject("XZ_Plane"), [""])
sketch4.MapMode = "FlatFace"
sketch4.AttachmentOffset = App.Placement(V(0, 0, -7), App.Rotation())
sketch4.addGeometry([
    Part.Circle(V(6.75, 2.7764, 0), V(0, 0, 1), 0.8),
    Part.Circle(V(1.25, 2.7764, 0), V(0, 0, 1), 0.8),
], False)
sketch4.addConstraint([
    Sketcher.Constraint("Equal", 0, 1),
    Sketcher.Constraint("Horizontal", 0, 3, 1, 3),
    Sketcher.Constraint("Diameter", 0, Q("1.6 mm")),
    Sketcher.Constraint("DistanceX", 1, 3, 0, 3, Q("5.5 mm")),
    Sketcher.Constraint("DistanceX", -1, 1, 0, 3, Q("6.75 mm")),
    Sketcher.Constraint("DistanceY", -1, 1, 0, 3, Q("2.7764 mm")),
])
sketch4.setExpression("Constraints[2]", "Params.sketch4_diameter")
pocket3 = body.newObject("PartDesign::Pocket", "Pocket002")
pocket3.Profile = sketch4
pocket3.setExpression("Length", "Params.pocket3_length")

# Sketch on XY plane
sketch5 = body.newObject("Sketcher::SketchObject", "Sketch004")
sketch5.AttachmentSupport = (doc.getObject("XY_Plane"), [""])
sketch5.MapMode = "FlatFace"
sketch5.AttachmentOffset = App.Placement(V(0, 0, 8), App.Rotation())
sketch5.addGeometry([
    Part.Circle(V(97, 3, 0), V(0, 0, 1), 1.25),  # 0
    Part.Circle(V(97, 47, 0), V(0, 0, 1), 1.25),  # 1
    Part.Circle(V(13, 3, 0), V(0, 0, 1), 1.25),  # 2
    Part.Circle(V(12, 11, 0), V(0, 0, 1), 1.25),  # 3
    Part.Circle(V(14, 47, 0), V(0, 0, 1), 1.25),  # 4
], False)
sketch5.addConstraint([
    Sketcher.Constraint("Equal", 0, 1),
    Sketcher.Constraint("Equal", 1, 2),
    Sketcher.Constraint("Equal", 2, 3),
    Sketcher.Constraint("Equal", 3, 4),
    Sketcher.Constraint("Horizontal", 0, 3, 2, 3),
    Sketcher.Constraint("Horizontal", 1, 3, 4, 3),
    Sketcher.Constraint("Vertical", 0, 3, 1, 3),
    Sketcher.Constraint("Diameter", 0, Q("2.5 mm")),
    Sketcher.Constraint("DistanceY", -1, 1, 0, 3, Q("3 mm")),
    Sketcher.Constraint("DistanceX", -1, 1, 0, 3, Q("97 mm")),
    Sketcher.Constraint("DistanceY", -1, 1, 1, 3, Q("47 mm")),
    Sketcher.Constraint("DistanceX", -1, 1, 2, 3, Q("13 mm")),
    Sketcher.Constraint("DistanceX", -1, 1, 3, 3, Q("12 mm")),
    Sketcher.Constraint("DistanceY", -1, 1, 3, 3, Q("11 mm")),
    Sketcher.Constraint("DistanceX", -1, 1, 4, 3, Q("14 mm")),
])
sketch5.setExpression("Constraints[7]", "Params.sketch5_diameter")
pocket4 = body.newObject("PartDesign::Pocket", "Pocket003")
pocket4.Profile = sketch5
pocket4.setExpression("Length", "Params.pocket4_length")

# Sketch on XZ plane
sketch6 = body.newObject("Sketcher::SketchObject", "Sketch005")
sketch6.AttachmentSupport = (doc.getObject("XZ_Plane"), [""])
sketch6.MapMode = "FlatFace"
sketch6.AttachmentOffset = App.Placement(V(0, 0, -50), App.Rotation())
sketch6.addGeometry([
    Part.Circle(V(23, 5, 0), V(0, 0, 1), 1.025),
    Part.Circle(V(78, 5, 0), V(0, 0, 1), 1.025),
], False)
sketch6.addConstraint([
    Sketcher.Constraint("Equal", 0, 1),
    Sketcher.Constraint("Horizontal", 0, 3, 1, 3),
    Sketcher.Constraint("Diameter", 0, Q("2.05 mm")),
    Sketcher.Constraint("DistanceX", -1, 1, 0, 3, Q("23 mm")),
    Sketcher.Constraint("DistanceX", 0, 3, 1, 3, Q("55 mm")),
    Sketcher.Constraint("DistanceY", -1, 1, 0, 3, Q("5 mm")),
])
sketch6.setExpression("Constraints[2]", "Params.sketch6_diameter")
pocket5 = body.newObject("PartDesign::Pocket", "Pocket004")
pocket5.Profile = sketch6
pocket5.setExpression("Length", "Params.pocket5_length")
pocket5.Reversed = True

# Sketch on XZ plane
sketch7 = body.newObject("Sketcher::SketchObject", "Sketch006")
sketch7.AttachmentSupport = (doc.getObject("XZ_Plane"), [""])
sketch7.MapMode = "FlatFace"
sketch7.addGeometry([
    Part.Circle(V(23, 5, 0), V(0, 0, 1), 1.025),
    Part.Circle(V(78, 5, 0), V(0, 0, 1), 1.025),
], False)
sketch7.addConstraint([
    Sketcher.Constraint("Equal", 0, 1),
    Sketcher.Constraint("Horizontal", 0, 3, 1, 3),
    Sketcher.Constraint("Diameter", 0, Q("2.05 mm")),
    Sketcher.Constraint("DistanceX", -1, 1, 0, 3, Q("23 mm")),
    Sketcher.Constraint("DistanceX", 0, 3, 1, 3, Q("55 mm")),
    Sketcher.Constraint("DistanceY", -1, 1, 0, 3, Q("5 mm")),
])
sketch7.setExpression("Constraints[2]", "Params.sketch7_diameter")
pocket6 = body.newObject("PartDesign::Pocket", "Pocket005")
pocket6.Profile = sketch7
pocket6.setExpression("Length", "Params.pocket6_length")

doc.recompute()
